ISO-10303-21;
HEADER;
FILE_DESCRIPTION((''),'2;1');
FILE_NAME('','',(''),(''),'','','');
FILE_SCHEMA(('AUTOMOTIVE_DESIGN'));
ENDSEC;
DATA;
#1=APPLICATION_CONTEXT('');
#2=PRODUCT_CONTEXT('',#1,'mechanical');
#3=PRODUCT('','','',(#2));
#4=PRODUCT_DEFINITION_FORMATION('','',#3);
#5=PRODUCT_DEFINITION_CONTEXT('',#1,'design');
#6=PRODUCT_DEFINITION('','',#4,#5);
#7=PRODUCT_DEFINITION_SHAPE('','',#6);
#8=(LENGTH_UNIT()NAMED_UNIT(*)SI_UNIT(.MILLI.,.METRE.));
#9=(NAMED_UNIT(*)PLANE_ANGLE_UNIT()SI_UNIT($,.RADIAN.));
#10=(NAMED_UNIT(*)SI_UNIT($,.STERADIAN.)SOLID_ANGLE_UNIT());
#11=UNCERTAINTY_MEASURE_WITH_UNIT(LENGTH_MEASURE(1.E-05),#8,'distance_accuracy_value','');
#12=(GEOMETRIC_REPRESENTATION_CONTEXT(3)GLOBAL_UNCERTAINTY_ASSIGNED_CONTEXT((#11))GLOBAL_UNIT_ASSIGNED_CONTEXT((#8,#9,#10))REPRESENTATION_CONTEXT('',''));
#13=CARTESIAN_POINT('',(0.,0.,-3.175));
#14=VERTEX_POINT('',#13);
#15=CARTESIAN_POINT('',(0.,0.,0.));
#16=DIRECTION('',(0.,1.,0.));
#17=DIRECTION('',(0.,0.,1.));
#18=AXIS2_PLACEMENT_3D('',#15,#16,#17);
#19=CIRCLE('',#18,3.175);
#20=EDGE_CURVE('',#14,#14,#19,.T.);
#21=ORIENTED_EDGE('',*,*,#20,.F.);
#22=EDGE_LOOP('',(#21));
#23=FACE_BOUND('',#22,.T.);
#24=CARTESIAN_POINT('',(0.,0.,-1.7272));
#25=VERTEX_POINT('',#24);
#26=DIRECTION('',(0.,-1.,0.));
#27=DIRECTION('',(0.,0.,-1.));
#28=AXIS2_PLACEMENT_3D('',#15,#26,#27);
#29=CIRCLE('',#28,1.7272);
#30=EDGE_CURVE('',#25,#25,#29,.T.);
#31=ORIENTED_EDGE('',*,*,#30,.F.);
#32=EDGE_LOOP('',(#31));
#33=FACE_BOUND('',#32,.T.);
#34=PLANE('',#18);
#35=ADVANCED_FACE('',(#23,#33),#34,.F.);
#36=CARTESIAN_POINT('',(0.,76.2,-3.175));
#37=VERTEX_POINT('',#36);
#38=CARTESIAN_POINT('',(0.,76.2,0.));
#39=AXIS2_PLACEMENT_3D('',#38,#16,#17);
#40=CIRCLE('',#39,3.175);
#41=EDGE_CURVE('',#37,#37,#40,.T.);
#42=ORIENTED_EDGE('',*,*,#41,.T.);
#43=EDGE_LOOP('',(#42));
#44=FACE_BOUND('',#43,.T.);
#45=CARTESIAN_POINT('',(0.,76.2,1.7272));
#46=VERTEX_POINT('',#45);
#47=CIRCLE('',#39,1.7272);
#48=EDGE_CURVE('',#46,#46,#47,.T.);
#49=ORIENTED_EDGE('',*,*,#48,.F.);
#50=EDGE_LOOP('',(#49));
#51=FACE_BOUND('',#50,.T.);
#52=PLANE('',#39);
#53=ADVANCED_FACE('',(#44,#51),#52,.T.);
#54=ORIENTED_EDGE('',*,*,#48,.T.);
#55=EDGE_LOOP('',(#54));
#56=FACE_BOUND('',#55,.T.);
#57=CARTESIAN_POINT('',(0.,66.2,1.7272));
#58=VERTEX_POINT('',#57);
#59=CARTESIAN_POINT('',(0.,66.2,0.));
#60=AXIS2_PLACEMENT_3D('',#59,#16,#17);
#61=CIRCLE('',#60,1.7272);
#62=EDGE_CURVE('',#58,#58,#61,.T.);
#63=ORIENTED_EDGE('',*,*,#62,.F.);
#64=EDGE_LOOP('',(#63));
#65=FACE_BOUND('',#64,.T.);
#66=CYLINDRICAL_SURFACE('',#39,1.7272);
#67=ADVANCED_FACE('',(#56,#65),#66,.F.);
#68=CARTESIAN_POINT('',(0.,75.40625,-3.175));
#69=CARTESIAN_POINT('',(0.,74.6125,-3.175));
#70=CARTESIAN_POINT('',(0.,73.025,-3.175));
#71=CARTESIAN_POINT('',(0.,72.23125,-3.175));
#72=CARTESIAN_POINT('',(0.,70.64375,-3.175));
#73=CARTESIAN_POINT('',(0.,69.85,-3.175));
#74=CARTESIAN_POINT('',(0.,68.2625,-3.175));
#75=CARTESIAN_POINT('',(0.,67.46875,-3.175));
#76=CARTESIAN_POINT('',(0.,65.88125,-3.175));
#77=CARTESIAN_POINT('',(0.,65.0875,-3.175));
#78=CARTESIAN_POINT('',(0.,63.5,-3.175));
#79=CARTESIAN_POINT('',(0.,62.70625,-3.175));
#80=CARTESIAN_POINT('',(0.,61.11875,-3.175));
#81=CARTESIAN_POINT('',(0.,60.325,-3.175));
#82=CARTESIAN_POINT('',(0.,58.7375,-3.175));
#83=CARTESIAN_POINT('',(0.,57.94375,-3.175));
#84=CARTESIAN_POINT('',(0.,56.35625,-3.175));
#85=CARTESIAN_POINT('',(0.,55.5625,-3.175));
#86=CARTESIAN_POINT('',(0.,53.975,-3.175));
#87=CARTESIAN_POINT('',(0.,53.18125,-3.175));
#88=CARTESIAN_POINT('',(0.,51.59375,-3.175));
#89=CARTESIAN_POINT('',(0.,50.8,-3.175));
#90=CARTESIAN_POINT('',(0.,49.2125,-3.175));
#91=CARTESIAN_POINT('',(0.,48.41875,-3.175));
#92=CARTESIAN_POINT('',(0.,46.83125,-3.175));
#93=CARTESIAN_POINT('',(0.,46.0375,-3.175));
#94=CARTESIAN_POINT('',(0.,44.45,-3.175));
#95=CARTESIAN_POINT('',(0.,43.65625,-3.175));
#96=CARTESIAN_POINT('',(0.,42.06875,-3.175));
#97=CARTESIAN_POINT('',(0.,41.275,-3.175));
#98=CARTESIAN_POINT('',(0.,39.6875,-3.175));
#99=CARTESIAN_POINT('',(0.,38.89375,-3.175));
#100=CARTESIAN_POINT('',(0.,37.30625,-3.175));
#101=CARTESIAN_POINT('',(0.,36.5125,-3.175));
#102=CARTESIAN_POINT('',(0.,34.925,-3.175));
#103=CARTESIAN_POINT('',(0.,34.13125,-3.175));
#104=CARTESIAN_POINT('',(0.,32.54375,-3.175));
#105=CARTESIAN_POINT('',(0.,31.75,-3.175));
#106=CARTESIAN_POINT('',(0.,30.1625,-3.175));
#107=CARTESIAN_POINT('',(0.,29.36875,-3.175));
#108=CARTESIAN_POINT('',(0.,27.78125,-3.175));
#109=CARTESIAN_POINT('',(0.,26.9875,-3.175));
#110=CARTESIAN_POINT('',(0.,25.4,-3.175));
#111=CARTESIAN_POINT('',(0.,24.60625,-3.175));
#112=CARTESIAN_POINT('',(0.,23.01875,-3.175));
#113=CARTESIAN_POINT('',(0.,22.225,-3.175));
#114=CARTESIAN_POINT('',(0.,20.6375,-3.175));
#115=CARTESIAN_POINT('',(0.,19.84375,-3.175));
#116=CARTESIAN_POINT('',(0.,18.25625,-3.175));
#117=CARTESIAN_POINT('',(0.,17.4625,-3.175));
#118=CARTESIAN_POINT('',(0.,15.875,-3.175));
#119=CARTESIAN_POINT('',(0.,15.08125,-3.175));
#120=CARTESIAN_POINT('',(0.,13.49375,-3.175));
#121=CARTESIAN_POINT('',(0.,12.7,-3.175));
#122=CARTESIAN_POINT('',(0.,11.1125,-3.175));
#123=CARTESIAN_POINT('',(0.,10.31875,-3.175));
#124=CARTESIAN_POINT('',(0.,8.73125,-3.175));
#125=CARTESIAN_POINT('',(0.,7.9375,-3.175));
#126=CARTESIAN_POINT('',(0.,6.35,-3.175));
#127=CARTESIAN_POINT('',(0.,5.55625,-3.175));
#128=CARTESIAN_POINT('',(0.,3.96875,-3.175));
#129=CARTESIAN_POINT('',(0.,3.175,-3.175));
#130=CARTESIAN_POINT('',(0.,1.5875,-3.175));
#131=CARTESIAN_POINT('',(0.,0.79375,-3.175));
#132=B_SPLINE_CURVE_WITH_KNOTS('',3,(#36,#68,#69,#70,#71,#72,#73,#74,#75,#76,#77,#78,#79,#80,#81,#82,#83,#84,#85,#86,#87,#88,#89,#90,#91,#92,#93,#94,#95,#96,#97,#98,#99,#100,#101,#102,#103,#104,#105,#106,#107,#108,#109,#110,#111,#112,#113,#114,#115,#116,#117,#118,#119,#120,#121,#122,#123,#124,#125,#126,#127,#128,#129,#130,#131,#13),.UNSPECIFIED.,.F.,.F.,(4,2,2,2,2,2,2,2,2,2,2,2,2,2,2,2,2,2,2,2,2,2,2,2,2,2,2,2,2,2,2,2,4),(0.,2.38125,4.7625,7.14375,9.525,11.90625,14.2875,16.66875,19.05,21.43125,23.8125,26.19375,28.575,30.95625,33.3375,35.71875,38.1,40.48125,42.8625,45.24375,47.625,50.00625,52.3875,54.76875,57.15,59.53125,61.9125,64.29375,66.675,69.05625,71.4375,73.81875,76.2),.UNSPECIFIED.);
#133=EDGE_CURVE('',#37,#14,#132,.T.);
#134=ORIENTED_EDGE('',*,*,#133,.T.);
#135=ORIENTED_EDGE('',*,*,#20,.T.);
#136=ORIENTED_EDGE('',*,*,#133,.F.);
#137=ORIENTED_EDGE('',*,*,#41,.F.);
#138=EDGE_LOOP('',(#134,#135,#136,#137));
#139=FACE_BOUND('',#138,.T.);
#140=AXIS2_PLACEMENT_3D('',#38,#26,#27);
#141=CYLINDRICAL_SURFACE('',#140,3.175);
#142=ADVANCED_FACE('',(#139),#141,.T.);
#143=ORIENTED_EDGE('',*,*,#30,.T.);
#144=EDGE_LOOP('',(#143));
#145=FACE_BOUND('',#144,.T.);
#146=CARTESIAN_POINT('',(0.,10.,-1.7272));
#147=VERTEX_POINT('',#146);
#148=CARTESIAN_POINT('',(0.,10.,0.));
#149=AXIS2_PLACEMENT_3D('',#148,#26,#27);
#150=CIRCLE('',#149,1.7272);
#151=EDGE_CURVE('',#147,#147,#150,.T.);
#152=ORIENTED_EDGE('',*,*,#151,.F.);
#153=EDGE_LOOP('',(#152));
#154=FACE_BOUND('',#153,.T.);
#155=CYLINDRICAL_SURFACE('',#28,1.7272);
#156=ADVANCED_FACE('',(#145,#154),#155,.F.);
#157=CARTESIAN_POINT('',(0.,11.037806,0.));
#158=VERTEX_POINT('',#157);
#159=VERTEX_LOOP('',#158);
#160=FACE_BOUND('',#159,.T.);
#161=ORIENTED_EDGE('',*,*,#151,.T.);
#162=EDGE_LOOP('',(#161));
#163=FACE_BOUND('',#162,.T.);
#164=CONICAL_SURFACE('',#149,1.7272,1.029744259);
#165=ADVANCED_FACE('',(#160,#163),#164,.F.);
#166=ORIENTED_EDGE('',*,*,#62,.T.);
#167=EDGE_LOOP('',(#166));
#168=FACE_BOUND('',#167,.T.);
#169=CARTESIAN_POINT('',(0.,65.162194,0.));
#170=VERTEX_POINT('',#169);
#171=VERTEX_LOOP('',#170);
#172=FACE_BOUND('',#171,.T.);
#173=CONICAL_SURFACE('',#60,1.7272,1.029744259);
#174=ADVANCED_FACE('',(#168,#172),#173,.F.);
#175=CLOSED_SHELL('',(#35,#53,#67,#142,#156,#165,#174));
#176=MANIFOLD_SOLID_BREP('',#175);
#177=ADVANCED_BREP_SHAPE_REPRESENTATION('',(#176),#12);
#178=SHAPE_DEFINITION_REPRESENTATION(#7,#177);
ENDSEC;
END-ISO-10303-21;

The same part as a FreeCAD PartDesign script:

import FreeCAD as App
import Part
import Sketcher

V = App.Vector
Q = App.Units.Quantity

doc = App.newDocument("Part")
body = doc.addObject("PartDesign::Body", "Body")

# Sketch on XZ plane
sketch1 = body.newObject("Sketcher::SketchObject", "Sketch")
sketch1.AttachmentSupport = (doc.getObject("XZ_Plane"), [""])
sketch1.MapMode = "FlatFace"
sketch1.addGeometry(Part.Circle(V(0, 0, 0), V(0, 0, 1), 3.175), False)
sketch1.addConstraint([
    Sketcher.Constraint("Coincident", 0, 3, -1, 1),
    Sketcher.Constraint("Diameter", 0, Q("0.25 in")),
])
pad1 = body.newObject("PartDesign::Pad", "Pad")
pad1.Profile = sketch1
pad1.Length = Q("3 in")
pad1.Reversed = True

# Sketch on XZ plane
sketch2 = body.newObject("Sketcher::SketchObject", "Sketch001")
sketch2.AttachmentSupport = (doc.getObject("XZ_Plane"), [""])
sketch2.MapMode = "FlatFace"
sketch2.AttachmentOffset = App.Placement(V(0, 0, -3 * 25.4), App.Rotation())
sketch2.addGeometry(Part.Circle(V(0, 0, 0), V(0, 0, 1), 1.7272), False)
sketch2.addConstraint([
    Sketcher.Constraint("Coincident", 0, 3, -1, 1),
    Sketcher.Constraint("Diameter", 0, Q("0.136 in")),
])
doc.recompute()
hole = body.newObject("PartDesign::Hole", "Hole")
hole.Profile = sketch2
hole.ThreadType = "None"
hole.Diameter = Q("0.136 in")
hole.DepthType = "Dimension"
hole.Depth = 10
hole.DrillPoint = "Angled"
hole.DrillPointAngle = 118
hole.Reversed = True

# Sketch on XZ plane
sketch3 = body.newObject("Sketcher::SketchObject", "Sketch002")
sketch3.AttachmentSupport = (doc.getObject("XZ_Plane"), [""])
sketch3.MapMode = "FlatFace"
sketch3.addGeometry(Part.Circle(V(0, 0, 0), V(0, 0, 1), 1.7272), False)
sketch3.addConstraint([
    Sketcher.Constraint("Coincident", 0, 3, -1, 1),
    Sketcher.Constraint("Diameter", 0, Q("0.136 in")),
])
doc.recompute()
hole2 = body.newObject("PartDesign::Hole", "Hole001")
hole2.Profile = sketch3
hole2.ThreadType = "None"
hole2.Diameter = Q("0.136 in")
hole2.DepthType = "Dimension"
hole2.Depth = 10
hole2.DrillPoint = "Angled"
hole2.DrillPointAngle = 118

doc.recompute()
